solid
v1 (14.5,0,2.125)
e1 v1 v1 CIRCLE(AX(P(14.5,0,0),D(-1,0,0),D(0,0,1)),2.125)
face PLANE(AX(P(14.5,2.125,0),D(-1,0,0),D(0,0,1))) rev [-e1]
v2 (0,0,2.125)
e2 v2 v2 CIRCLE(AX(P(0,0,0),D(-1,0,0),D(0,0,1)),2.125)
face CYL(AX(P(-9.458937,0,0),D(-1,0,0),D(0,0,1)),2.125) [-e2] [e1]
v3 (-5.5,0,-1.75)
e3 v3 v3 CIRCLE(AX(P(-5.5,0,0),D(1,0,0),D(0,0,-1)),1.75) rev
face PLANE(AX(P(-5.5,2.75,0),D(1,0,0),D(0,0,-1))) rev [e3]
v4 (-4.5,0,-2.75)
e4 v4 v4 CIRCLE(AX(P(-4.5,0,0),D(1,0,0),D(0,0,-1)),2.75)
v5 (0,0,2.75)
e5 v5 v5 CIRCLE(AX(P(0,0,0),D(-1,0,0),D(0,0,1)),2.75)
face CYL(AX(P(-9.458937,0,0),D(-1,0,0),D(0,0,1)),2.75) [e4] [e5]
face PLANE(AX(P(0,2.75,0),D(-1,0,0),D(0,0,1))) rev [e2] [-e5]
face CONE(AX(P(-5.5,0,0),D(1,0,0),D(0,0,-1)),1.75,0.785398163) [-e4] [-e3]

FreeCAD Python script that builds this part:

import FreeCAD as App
import Part
import Sketcher
from FreeCAD import Vector
Q = App.Units.Quantity


def edges_at(feature, points):
    """Names of the edges that pass closest to the given points."""
    edges = feature.Shape.Edges
    near = lambda p: min(range(len(edges)), key=lambda i: edges[i].distToShape(Part.Vertex(*p))[0])
    return sorted({f"Edge{near(p) + 1}" for p in points})


def add_polygon(sketch, points):
    """Adds a closed chain of lines whose ends are joined by coincident constraints."""
    first, n = sketch.GeometryCount, len(points)
    for a, b in zip(points, points[1:] + points[:1]):
        sketch.addGeometry(Part.LineSegment(App.Vector(*a, 0), App.Vector(*b, 0)), False)
    for i in range(n):
        sketch.addConstraint(Sketcher.Constraint("Coincident", first + i, 2, first + (i + 1) % n, 1))

doc = App.newDocument("Part")
body = doc.addObject("PartDesign::Body", "Body")

# Sketch on XY plane
sketch1 = doc.addObject("Sketcher::SketchObject", "Sketch")
body.addObject(sketch1)
sketch1.AttachmentSupport = (doc.XY_Plane, [""])
sketch1.MapMode = "FlatFace"
add_polygon(sketch1, [(0, 2.8), (-5.5, 2.8), (-5.5, 0), (14.5, 0), (14.5, 2.1), (0, 2.1)])  # lines 0-5
sketch1.addConstraint(Sketcher.Constraint("Horizontal", 0))
sketch1.addConstraint(Sketcher.Constraint("Vertical", 1))
sketch1.addConstraint(Sketcher.Constraint("Horizontal", 2))
sketch1.addConstraint(Sketcher.Constraint("Vertical", 3))
sketch1.addConstraint(Sketcher.Constraint("Horizontal", 4))
sketch1.addConstraint(Sketcher.Constraint("Vertical", 5))
sketch1.addConstraint(Sketcher.Constraint("PointOnObject", 1, 2, -1))
sketch1.addConstraint(Sketcher.Constraint("PointOnObject", 4, 2, -2))
sketch1.addConstraint(Sketcher.Constraint("DistanceX", 2, 1, 2, 2, Q("20 mm")))
sketch1.addConstraint(Sketcher.Constraint("DistanceX", 0, 2, 0, 1, Q("5.5 mm")))
sketch1.addConstraint(Sketcher.Constraint("DistanceY", 1, 2, 1, 1, Q("2.75 mm")))
sketch1.addConstraint(Sketcher.Constraint("DistanceY", 3, 1, 3, 2, Q("2.125 mm")))
revolution = doc.addObject("PartDesign::Revolution", "Revolution")
body.addObject(revolution)
revolution.Profile = sketch1
revolution.ReferenceAxis = (sketch1, ["H_Axis"])
revolution.Angle = 360
doc.recompute()

chamfer = doc.addObject("PartDesign::Chamfer", "Chamfer")
body.addObject(chamfer)
chamfer.Base = (revolution, edges_at(revolution, [(-5.5, 0, -2.75)]))
chamfer.Size = 1

doc.recompute()
